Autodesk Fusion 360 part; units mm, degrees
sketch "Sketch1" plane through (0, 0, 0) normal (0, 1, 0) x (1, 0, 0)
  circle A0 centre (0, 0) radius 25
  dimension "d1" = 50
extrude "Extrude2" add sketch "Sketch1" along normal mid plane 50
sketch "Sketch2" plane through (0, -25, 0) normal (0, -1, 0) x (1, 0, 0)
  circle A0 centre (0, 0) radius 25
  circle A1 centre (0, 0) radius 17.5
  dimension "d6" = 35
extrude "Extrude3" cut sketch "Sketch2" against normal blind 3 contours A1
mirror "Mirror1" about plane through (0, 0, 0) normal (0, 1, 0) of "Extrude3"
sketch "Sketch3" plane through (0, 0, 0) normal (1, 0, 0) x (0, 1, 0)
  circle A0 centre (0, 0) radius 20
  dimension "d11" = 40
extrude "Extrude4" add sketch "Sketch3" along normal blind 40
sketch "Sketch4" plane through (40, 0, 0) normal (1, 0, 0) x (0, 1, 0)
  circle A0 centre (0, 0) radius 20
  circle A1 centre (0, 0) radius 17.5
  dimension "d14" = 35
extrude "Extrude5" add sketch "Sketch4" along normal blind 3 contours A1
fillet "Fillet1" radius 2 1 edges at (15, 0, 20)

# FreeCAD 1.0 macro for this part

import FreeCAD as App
import Part
import Sketcher

V = App.Vector
Q = App.Units.Quantity


def edges_at(feature, points):
    """Names of the edges that pass closest to the given points."""
    edges = feature.Shape.Edges
    near = lambda p: min(range(len(edges)), key=lambda i: edges[i].distToShape(Part.Vertex(*p))[0])
    return sorted({f"Edge{near(p) + 1}" for p in points})

doc = App.newDocument("Part")
body = doc.addObject("PartDesign::Body", "Body")

# Sketch on XZ plane
sketch1 = body.newObject("Sketcher::SketchObject", "Sketch")
sketch1.AttachmentSupport = (doc.getObject("XZ_Plane"), [""])
sketch1.MapMode = "FlatFace"
sketch1.addGeometry(Part.Circle(V(0, 0, 0), V(0, 0, 1), 25), False)
sketch1.addConstraint([
    Sketcher.Constraint("Coincident", 0, 3, -1, 1),
    Sketcher.Constraint("Diameter", 0, Q("50 mm")),
])
pad1 = body.newObject("PartDesign::Pad", "Pad")
pad1.Profile = sketch1
pad1.Length = 50
pad1.Midplane = True

# Sketch on XZ plane
sketch2 = body.newObject("Sketcher::SketchObject", "Sketch001")
sketch2.AttachmentSupport = (doc.getObject("XZ_Plane"), [""])
sketch2.MapMode = "FlatFace"
sketch2.AttachmentOffset = App.Placement(V(0, 0, 25), App.Rotation())
sketch2.addGeometry(Part.Circle(V(0, 0, 0), V(0, 0, 1), 18), False)
sketch2.addConstraint([
    Sketcher.Constraint("Coincident", 0, 3, -1, 1),
    Sketcher.Constraint("Diameter", 0, Q("35 mm")),
])
pocket1 = body.newObject("PartDesign::Pocket", "Pocket")
pocket1.Profile = sketch2
pocket1.Length = 3
doc.recompute()

mirrored = body.newObject("PartDesign::Mirrored", "Mirrored")
mirrored.Originals = [pocket1]
mirrored.MirrorPlane = (doc.getObject("XZ_Plane"), [""])
body.Tip = mirrored

# Sketch on YZ plane
sketch3 = body.newObject("Sketcher::SketchObject", "Sketch002")
sketch3.AttachmentSupport = (doc.getObject("YZ_Plane"), [""])
sketch3.MapMode = "FlatFace"
sketch3.addGeometry(Part.Circle(V(0, 0, 0), V(0, 0, 1), 20), False)
sketch3.addConstraint([
    Sketcher.Constraint("Coincident", 0, 3, -1, 1),
    Sketcher.Constraint("Diameter", 0, Q("40 mm")),
])
pad2 = body.newObject("PartDesign::Pad", "Pad001")
pad2.Profile = sketch3
pad2.Length = 40

# Sketch on YZ plane
sketch4 = body.newObject("Sketcher::SketchObject", "Sketch003")
sketch4.AttachmentSupport = (doc.getObject("YZ_Plane"), [""])
sketch4.MapMode = "FlatFace"
sketch4.AttachmentOffset = App.Placement(V(0, 0, 40), App.Rotation())
sketch4.addGeometry(Part.Circle(V(0, 0, 0), V(0, 0, 1), 18), False)
sketch4.addConstraint([
    Sketcher.Constraint("Coincident", 0, 3, -1, 1),
    Sketcher.Constraint("Diameter", 0, Q("35 mm")),
])
pad3 = body.newObject("PartDesign::Pad", "Pad002")
pad3.Profile = sketch4
pad3.Length = 3
doc.recompute()

fillet = body.newObject("PartDesign::Fillet", "Fillet")
fillet.Base = (pad3, edges_at(pad3, [(15, 0, 20)]))
fillet.Radius = 2

doc.recompute()
